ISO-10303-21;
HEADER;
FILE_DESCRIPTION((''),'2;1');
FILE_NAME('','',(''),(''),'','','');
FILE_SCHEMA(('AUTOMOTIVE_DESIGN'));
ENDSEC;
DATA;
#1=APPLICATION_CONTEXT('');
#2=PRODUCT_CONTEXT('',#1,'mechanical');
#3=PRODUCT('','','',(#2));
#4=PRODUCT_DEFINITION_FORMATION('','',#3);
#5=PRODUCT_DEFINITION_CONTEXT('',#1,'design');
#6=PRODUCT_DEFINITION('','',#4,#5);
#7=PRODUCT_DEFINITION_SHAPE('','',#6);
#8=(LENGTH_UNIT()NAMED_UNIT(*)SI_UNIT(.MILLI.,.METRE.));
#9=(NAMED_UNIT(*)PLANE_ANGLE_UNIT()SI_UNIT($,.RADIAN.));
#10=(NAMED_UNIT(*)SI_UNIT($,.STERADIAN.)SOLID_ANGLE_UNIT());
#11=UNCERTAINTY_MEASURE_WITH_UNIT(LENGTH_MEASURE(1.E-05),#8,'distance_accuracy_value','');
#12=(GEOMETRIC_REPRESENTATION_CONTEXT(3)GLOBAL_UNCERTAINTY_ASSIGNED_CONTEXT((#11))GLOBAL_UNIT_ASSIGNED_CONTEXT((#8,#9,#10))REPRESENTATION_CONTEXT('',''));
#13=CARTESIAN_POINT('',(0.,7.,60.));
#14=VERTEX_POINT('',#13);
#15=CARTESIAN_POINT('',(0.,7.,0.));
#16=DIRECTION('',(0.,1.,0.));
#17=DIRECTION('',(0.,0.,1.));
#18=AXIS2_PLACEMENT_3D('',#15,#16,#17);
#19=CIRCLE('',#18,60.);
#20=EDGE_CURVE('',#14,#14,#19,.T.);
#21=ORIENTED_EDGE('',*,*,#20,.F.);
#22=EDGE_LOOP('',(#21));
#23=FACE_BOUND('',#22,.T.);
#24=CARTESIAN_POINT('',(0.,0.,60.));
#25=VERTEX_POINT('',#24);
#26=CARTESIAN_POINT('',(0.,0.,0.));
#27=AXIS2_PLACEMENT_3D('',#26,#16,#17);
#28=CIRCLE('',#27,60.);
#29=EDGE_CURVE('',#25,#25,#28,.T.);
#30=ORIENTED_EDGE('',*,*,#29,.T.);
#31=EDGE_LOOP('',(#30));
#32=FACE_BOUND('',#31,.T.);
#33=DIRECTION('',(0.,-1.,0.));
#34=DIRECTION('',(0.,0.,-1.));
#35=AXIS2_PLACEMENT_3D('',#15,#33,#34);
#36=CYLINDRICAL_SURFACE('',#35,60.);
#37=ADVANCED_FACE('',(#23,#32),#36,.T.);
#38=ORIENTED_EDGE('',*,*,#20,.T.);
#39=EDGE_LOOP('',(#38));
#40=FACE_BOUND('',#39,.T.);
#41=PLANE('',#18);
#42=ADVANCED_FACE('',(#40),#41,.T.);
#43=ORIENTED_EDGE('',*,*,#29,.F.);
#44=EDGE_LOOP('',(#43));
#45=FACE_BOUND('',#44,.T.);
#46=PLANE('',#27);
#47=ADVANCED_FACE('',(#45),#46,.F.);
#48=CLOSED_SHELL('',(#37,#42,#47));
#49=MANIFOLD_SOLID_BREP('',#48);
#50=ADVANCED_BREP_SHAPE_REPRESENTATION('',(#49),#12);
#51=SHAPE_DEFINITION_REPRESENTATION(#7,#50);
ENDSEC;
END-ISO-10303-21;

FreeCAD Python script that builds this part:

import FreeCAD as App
import Part
import Sketcher

doc = App.newDocument("Part")
body = doc.addObject("PartDesign::Body", "Body")

# Sketch on XZ plane
sketch1 = body.newObject("Sketcher::SketchObject", "Sketch")
sketch1.AttachmentSupport = (doc.getObject("XZ_Plane"), [""])
sketch1.MapMode = "FlatFace"
sketch1.addGeometry(Part.Circle(App.Vector(0, 0, 0), App.Vector(0, 0, 1), 60), False)
sketch1.addConstraint([
    Sketcher.Constraint("Coincident", 0, 3, -1, 1),
    Sketcher.Constraint("Diameter", 0, 120.0),
])
pad1 = body.newObject("PartDesign::Pad", "Pad")
pad1.Profile = sketch1
pad1.Length = 7
pad1.Reversed = True

doc.recompute()
